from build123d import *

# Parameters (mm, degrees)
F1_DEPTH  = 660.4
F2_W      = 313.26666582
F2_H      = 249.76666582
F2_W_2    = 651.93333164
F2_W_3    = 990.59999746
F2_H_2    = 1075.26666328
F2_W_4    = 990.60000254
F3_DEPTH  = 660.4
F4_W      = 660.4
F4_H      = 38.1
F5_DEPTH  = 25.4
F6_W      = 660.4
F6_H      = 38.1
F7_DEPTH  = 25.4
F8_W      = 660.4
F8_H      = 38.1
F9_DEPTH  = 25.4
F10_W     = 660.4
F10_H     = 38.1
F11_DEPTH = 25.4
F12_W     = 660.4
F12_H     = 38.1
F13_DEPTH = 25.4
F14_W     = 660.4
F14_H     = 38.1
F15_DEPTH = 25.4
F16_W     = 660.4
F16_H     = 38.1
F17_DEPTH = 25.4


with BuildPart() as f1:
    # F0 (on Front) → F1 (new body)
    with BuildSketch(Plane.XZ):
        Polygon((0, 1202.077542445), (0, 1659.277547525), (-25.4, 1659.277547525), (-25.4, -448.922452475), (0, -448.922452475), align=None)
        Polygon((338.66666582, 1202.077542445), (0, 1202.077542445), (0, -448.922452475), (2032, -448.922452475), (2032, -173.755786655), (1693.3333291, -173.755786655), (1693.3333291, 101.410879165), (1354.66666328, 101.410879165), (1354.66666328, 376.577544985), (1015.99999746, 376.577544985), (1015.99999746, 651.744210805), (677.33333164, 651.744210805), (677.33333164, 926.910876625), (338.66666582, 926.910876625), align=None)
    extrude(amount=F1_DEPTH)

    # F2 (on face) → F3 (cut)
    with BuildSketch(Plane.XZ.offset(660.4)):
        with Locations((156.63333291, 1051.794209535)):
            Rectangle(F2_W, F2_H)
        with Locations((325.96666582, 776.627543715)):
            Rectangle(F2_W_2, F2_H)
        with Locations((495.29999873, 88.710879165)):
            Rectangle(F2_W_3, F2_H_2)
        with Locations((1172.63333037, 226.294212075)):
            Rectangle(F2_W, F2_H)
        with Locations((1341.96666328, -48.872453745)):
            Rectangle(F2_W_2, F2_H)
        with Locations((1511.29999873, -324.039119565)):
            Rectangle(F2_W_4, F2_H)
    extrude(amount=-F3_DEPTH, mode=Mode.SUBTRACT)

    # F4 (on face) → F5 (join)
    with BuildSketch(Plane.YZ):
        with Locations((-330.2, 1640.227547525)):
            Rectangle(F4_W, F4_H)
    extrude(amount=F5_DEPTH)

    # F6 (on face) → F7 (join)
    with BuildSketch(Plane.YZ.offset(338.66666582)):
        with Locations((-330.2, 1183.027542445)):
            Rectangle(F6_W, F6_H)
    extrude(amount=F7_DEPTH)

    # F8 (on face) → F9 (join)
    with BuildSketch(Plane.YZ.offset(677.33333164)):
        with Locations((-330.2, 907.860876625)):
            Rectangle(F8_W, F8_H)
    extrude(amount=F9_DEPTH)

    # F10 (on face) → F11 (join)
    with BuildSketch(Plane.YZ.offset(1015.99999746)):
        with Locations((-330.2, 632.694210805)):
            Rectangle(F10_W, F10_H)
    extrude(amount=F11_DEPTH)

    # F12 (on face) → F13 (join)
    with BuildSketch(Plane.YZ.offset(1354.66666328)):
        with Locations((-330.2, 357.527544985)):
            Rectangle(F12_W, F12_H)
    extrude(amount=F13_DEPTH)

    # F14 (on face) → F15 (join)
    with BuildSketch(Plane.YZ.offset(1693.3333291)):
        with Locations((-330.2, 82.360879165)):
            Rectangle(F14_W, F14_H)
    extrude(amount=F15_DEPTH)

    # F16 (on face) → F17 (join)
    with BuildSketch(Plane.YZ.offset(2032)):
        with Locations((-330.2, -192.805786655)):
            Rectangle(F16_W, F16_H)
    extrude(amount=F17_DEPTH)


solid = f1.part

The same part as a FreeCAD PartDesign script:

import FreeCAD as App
import Part
import Sketcher
Q = App.Units.Quantity


def add_polygon(sketch, points):
    """Adds a closed chain of lines whose ends are joined by coincident constraints."""
    first, n = sketch.GeometryCount, len(points)
    for a, b in zip(points, points[1:] + points[:1]):
        sketch.addGeometry(Part.LineSegment(App.Vector(*a, 0), App.Vector(*b, 0)), False)
    for i in range(n):
        sketch.addConstraint(Sketcher.Constraint("Coincident", first + i, 2, first + (i + 1) % n, 1))

doc = App.newDocument("Part")
body = doc.addObject("PartDesign::Body", "Body")

sketch1 = doc.addObject("Sketcher::SketchObject", "Sketch")
body.addObject(sketch1)
sketch1.AttachmentSupport = (doc.XZ_Plane, [""])
sketch1.MapMode = "FlatFace"
add_polygon(sketch1, [(0, 1659.277548), (-25.4, 1659.277548), (-25.4, -448.922452), (2032, -448.922452), (2032, -173.755787), (1693.333329, -173.755787), (1693.333329, 101.410879), (1354.666663, 101.410879), (1354.666663, 376.577545), (1015.999997, 376.577545), (1015.999997, 651.744211), (677.333332, 651.744211), (677.333332, 926.910877), (338.666666, 926.910877), (338.666666, 1202.077542), (0, 1202.077542)])
sketch1.addConstraint([
    Sketcher.Constraint("Horizontal", 0),
    Sketcher.Constraint("Vertical", 1),
    Sketcher.Constraint("Horizontal", 2),
    Sketcher.Constraint("Vertical", 3),
    Sketcher.Constraint("Horizontal", 4),
    Sketcher.Constraint("Vertical", 5),
    Sketcher.Constraint("Horizontal", 6),
    Sketcher.Constraint("Vertical", 7),
    Sketcher.Constraint("Horizontal", 8),
    Sketcher.Constraint("Vertical", 9),
    Sketcher.Constraint("Horizontal", 10),
    Sketcher.Constraint("Vertical", 11),
    Sketcher.Constraint("Horizontal", 12),
    Sketcher.Constraint("Vertical", 13),
    Sketcher.Constraint("Horizontal", 14),
    Sketcher.Constraint("Vertical", 15),
    Sketcher.Constraint("PointOnObject", 14, 2, -2),
    Sketcher.Constraint("Equal", 6, 8),
    Sketcher.Constraint("Equal", 8, 10),
    Sketcher.Constraint("Equal", 10, 12),
    Sketcher.Constraint("Equal", 12, 14),
    Sketcher.Constraint("Equal", 3, 5),
    Sketcher.Constraint("Equal", 5, 7),
    Sketcher.Constraint("Equal", 7, 9),
    Sketcher.Constraint("Equal", 9, 11),
    Sketcher.Constraint("Equal", 11, 13),
    Sketcher.Constraint("DistanceX", 0, 2, 0, 1, Q("1 in")),
    Sketcher.Constraint("DistanceX", 2, 1, 2, 2, Q("81 in")),
    Sketcher.Constraint("DistanceY", 1, 2, 1, 1, Q("83 in")),
    Sketcher.Constraint("DistanceY", 15, 1, 15, 2, Q("18.0000002 in")),
    Sketcher.Constraint("DistanceX", -1, 1, 8, 2, Q("39.9999999 in")),
    Sketcher.Constraint("DistanceY", -1, 1, 5, 2, Q("101.410879 mm")),
])
pad1 = doc.addObject("PartDesign::Pad", "Pad")
body.addObject(pad1)
pad1.Profile = sketch1
pad1.Length = Q("26 in")

sketch2 = doc.addObject("Sketcher::SketchObject", "Sketch001")
body.addObject(sketch2)
sketch2.AttachmentSupport = (doc.XZ_Plane, [""])
sketch2.MapMode = "FlatFace"
sketch2.AttachmentOffset = App.Placement(App.Vector(0, 0, 26 * 25.4), App.Rotation())
add_polygon(sketch2, [(0, 1176.677542), (0, 926.910877), (313.266666, 926.910877), (313.266666, 1176.677542)])
add_polygon(sketch2, [(0, 901.510877), (0, 651.744211), (651.933332, 651.744211), (651.933332, 901.510877)])
add_polygon(sketch2, [(0, 626.344211), (0, -448.922452), (990.599997, -448.922452), (990.599997, 626.344211)])
add_polygon(sketch2, [(1015.999997, 351.177545), (1015.999997, 101.410879), (1329.266663, 101.410879), (1329.266663, 351.177545)])
add_polygon(sketch2, [(1015.999997, 76.010879), (1015.999997, -173.755787), (1667.933329, -173.755787), (1667.933329, 76.010879)])
add_polygon(sketch2, [(1015.999997, -199.155787), (1015.999997, -448.922452), (2006.6, -448.922452), (2006.6, -199.155787)])
sketch2.addConstraint([
    Sketcher.Constraint("Vertical", 0),
    Sketcher.Constraint("Horizontal", 1),
    Sketcher.Constraint("Vertical", 2),
    Sketcher.Constraint("Horizontal", 3),
    Sketcher.Constraint("Vertical", 4),
    Sketcher.Constraint("Horizontal", 5),
    Sketcher.Constraint("Vertical", 6),
    Sketcher.Constraint("Horizontal", 7),
    Sketcher.Constraint("Vertical", 8),
    Sketcher.Constraint("Horizontal", 9),
    Sketcher.Constraint("Vertical", 10),
    Sketcher.Constraint("Horizontal", 11),
    Sketcher.Constraint("Vertical", 12),
    Sketcher.Constraint("Horizontal", 13),
    Sketcher.Constraint("Vertical", 14),
    Sketcher.Constraint("Horizontal", 15),
    Sketcher.Constraint("Vertical", 16),
    Sketcher.Constraint("Horizontal", 17),
    Sketcher.Constraint("Vertical", 18),
    Sketcher.Constraint("Horizontal", 19),
    Sketcher.Constraint("Vertical", 20),
    Sketcher.Constraint("Horizontal", 21),
    Sketcher.Constraint("Vertical", 22),
    Sketcher.Constraint("Horizontal", 23),
    Sketcher.Constraint("PointOnObject", 0, 2, -2),
    Sketcher.Constraint("PointOnObject", 4, 2, -2),
    Sketcher.Constraint("PointOnObject", 8, 2, -2),
    Sketcher.Constraint("Horizontal", 9, 2, 20, 2),
    Sketcher.Constraint("Vertical", 15, 2, 16, 2),
    Sketcher.Constraint("Vertical", 19, 2, 20, 2),
    Sketcher.Constraint("Equal", 3, 13),
    Sketcher.Constraint("Equal", 7, 17),
    Sketcher.Constraint("Equal", 2, 4),
    Sketcher.Constraint("Equal", 6, 12),
    Sketcher.Constraint("Equal", 14, 16),
    Sketcher.Constraint("Equal", 18, 20),
    Sketcher.Constraint("DistanceX", 9, 1, 9, 2, Q("38.9999999 in")),
    Sketcher.Constraint("DistanceX", 21, 1, 21, 2, Q("39.0000001 in")),
    Sketcher.Constraint("DistanceX", -1, 1, 12, 2, Q("39.9999999 in")),
    Sketcher.Constraint("DistanceY", 6, 2, 1, 2, Q("1 in")),
    Sketcher.Constraint("DistanceY", 10, 2, 5, 2, Q("1 in")),
    Sketcher.Constraint("DistanceY", 18, 2, 13, 2, Q("1 in")),
    Sketcher.Constraint("DistanceY", 22, 2, 17, 2, Q("1 in")),
    Sketcher.Constraint("DistanceY", 12, 2, 6, 2, Q("31.4999999 in")),
    Sketcher.Constraint("DistanceY", 9, 2, 14, 2, Q("31.4999999 in")),
    Sketcher.Constraint("DistanceX", 5, 1, 5, 2, Q("651.933332 mm")),
    Sketcher.Constraint("DistanceX", 1, 1, 1, 2, Q("313.266666 mm")),
    Sketcher.Constraint("DistanceY", -1, 1, 4, 2, Q("651.744211 mm")),
])
pocket1 = doc.addObject("PartDesign::Pocket", "Pocket")
body.addObject(pocket1)
pocket1.Profile = sketch2
pocket1.Length = Q("26 in")

sketch3 = doc.addObject("Sketcher::SketchObject", "Sketch002")
body.addObject(sketch3)
sketch3.AttachmentSupport = (doc.YZ_Plane, [""])
sketch3.MapMode = "FlatFace"
add_polygon(sketch3, [(-660.4, 1659.277548), (-660.4, 1621.177548), (0, 1621.177548), (0, 1659.277548)])
sketch3.addConstraint([
    Sketcher.Constraint("Vertical", 0),
    Sketcher.Constraint("Horizontal", 1),
    Sketcher.Constraint("Vertical", 2),
    Sketcher.Constraint("Horizontal", 3),
    Sketcher.Constraint("PointOnObject", 1, 2, -2),
    Sketcher.Constraint("DistanceX", 1, 1, 1, 2, Q("26 in")),
    Sketcher.Constraint("DistanceY", 0, 2, 0, 1, Q("1.5 in")),
    Sketcher.Constraint("DistanceY", -1, 1, 0, 2, Q("1621.177548 mm")),
])
pad2 = doc.addObject("PartDesign::Pad", "Pad001")
body.addObject(pad2)
pad2.Profile = sketch3
pad2.Length = Q("1 in")

sketch4 = doc.addObject("Sketcher::SketchObject", "Sketch003")
body.addObject(sketch4)
sketch4.AttachmentSupport = (doc.YZ_Plane, [""])
sketch4.MapMode = "FlatFace"
sketch4.AttachmentOffset = App.Placement(App.Vector(0, 0, 338.666666), App.Rotation())
add_polygon(sketch4, [(-660.4, 1202.077542), (-660.4, 1163.977542), (0, 1163.977542), (0, 1202.077542)])
sketch4.addConstraint([
    Sketcher.Constraint("Vertical", 0),
    Sketcher.Constraint("Horizontal", 1),
    Sketcher.Constraint("Vertical", 2),
    Sketcher.Constraint("Horizontal", 3),
    Sketcher.Constraint("PointOnObject", 1, 2, -2),
    Sketcher.Constraint("DistanceX", 1, 1, 1, 2, Q("26 in")),
    Sketcher.Constraint("DistanceY", 0, 2, 0, 1, Q("1.5 in")),
    Sketcher.Constraint("DistanceY", -1, 1, 0, 2, Q("1163.977542 mm")),
])
pad3 = doc.addObject("PartDesign::Pad", "Pad002")
body.addObject(pad3)
pad3.Profile = sketch4
pad3.Length = Q("1 in")

sketch5 = doc.addObject("Sketcher::SketchObject", "Sketch004")
body.addObject(sketch5)
sketch5.AttachmentSupport = (doc.YZ_Plane, [""])
sketch5.MapMode = "FlatFace"
sketch5.AttachmentOffset = App.Placement(App.Vector(0, 0, 677.333332), App.Rotation())
add_polygon(sketch5, [(-660.4, 926.910877), (-660.4, 888.810877), (0, 888.810877), (0, 926.910877)])
sketch5.addConstraint([
    Sketcher.Constraint("Vertical", 0),
    Sketcher.Constraint("Horizontal", 1),
    Sketcher.Constraint("Vertical", 2),
    Sketcher.Constraint("Horizontal", 3),
    Sketcher.Constraint("PointOnObject", 1, 2, -2),
    Sketcher.Constraint("DistanceX", 1, 1, 1, 2, Q("26 in")),
    Sketcher.Constraint("DistanceY", 0, 2, 0, 1, Q("1.5 in")),
    Sketcher.Constraint("DistanceY", -1, 1, 0, 2, Q("888.810877 mm")),
])
pad4 = doc.addObject("PartDesign::Pad", "Pad003")
body.addObject(pad4)
pad4.Profile = sketch5
pad4.Length = Q("1 in")

sketch6 = doc.addObject("Sketcher::SketchObject", "Sketch005")
body.addObject(sketch6)
sketch6.AttachmentSupport = (doc.YZ_Plane, [""])
sketch6.MapMode = "FlatFace"
sketch6.AttachmentOffset = App.Placement(App.Vector(0, 0, 39.9999999 * 25.4), App.Rotation())
add_polygon(sketch6, [(-660.4, 651.744211), (-660.4, 613.644211), (0, 613.644211), (0, 651.744211)])
sketch6.addConstraint([
    Sketcher.Constraint("Vertical", 0),
    Sketcher.Constraint("Horizontal", 1),
    Sketcher.Constraint("Vertical", 2),
    Sketcher.Constraint("Horizontal", 3),
    Sketcher.Constraint("PointOnObject", 1, 2, -2),
    Sketcher.Constraint("DistanceX", 1, 1, 1, 2, Q("26 in")),
    Sketcher.Constraint("DistanceY", 0, 2, 0, 1, Q("1.5 in")),
    Sketcher.Constraint("DistanceY", -1, 1, 0, 2, Q("613.644211 mm")),
])
pad5 = doc.addObject("PartDesign::Pad", "Pad004")
body.addObject(pad5)
pad5.Profile = sketch6
pad5.Length = Q("1 in")

sketch7 = doc.addObject("Sketcher::SketchObject", "Sketch006")
body.addObject(sketch7)
sketch7.AttachmentSupport = (doc.YZ_Plane, [""])
sketch7.MapMode = "FlatFace"
sketch7.AttachmentOffset = App.Placement(App.Vector(0, 0, 1354.666663), App.Rotation())
add_polygon(sketch7, [(-660.4, 376.577545), (-660.4, 338.477545), (0, 338.477545), (0, 376.577545)])
sketch7.addConstraint([
    Sketcher.Constraint("Vertical", 0),
    Sketcher.Constraint("Horizontal", 1),
    Sketcher.Constraint("Vertical", 2),
    Sketcher.Constraint("Horizontal", 3),
    Sketcher.Constraint("PointOnObject", 1, 2, -2),
    Sketcher.Constraint("DistanceX", 1, 1, 1, 2, Q("26 in")),
    Sketcher.Constraint("DistanceY", 0, 2, 0, 1, Q("1.5 in")),
    Sketcher.Constraint("DistanceY", -1, 1, 0, 2, Q("338.477545 mm")),
])
pad6 = doc.addObject("PartDesign::Pad", "Pad005")
body.addObject(pad6)
pad6.Profile = sketch7
pad6.Length = Q("1 in")

sketch8 = doc.addObject("Sketcher::SketchObject", "Sketch007")
body.addObject(sketch8)
sketch8.AttachmentSupport = (doc.YZ_Plane, [""])
sketch8.MapMode = "FlatFace"
sketch8.AttachmentOffset = App.Placement(App.Vector(0, 0, 1693.333329), App.Rotation())
add_polygon(sketch8, [(-660.4, 101.410879), (-660.4, 63.310879), (0, 63.310879), (0, 101.410879)])
sketch8.addConstraint([
    Sketcher.Constraint("Vertical", 0),
    Sketcher.Constraint("Horizontal", 1),
    Sketcher.Constraint("Vertical", 2),
    Sketcher.Constraint("Horizontal", 3),
    Sketcher.Constraint("PointOnObject", 1, 2, -2),
    Sketcher.Constraint("DistanceX", 1, 1, 1, 2, Q("26 in")),
    Sketcher.Constraint("DistanceY", 0, 2, 0, 1, Q("1.5 in")),
    Sketcher.Constraint("DistanceY", -1, 1, 0, 2, Q("63.310879 mm")),
])
pad7 = doc.addObject("PartDesign::Pad", "Pad006")
body.addObject(pad7)
pad7.Profile = sketch8
pad7.Length = Q("1 in")

sketch9 = doc.addObject("Sketcher::SketchObject", "Sketch008")
body.addObject(sketch9)
sketch9.AttachmentSupport = (doc.YZ_Plane, [""])
sketch9.MapMode = "FlatFace"
sketch9.AttachmentOffset = App.Placement(App.Vector(0, 0, 80 * 25.4), App.Rotation())
add_polygon(sketch9, [(-660.4, -173.755787), (-660.4, -211.855787), (0, -211.855787), (0, -173.755787)])
sketch9.addConstraint([
    Sketcher.Constraint("Vertical", 0),
    Sketcher.Constraint("Horizontal", 1),
    Sketcher.Constraint("Vertical", 2),
    Sketcher.Constraint("Horizontal", 3),
    Sketcher.Constraint("PointOnObject", 1, 2, -2),
    Sketcher.Constraint("DistanceX", 1, 1, 1, 2, Q("26 in")),
    Sketcher.Constraint("DistanceY", 0, 2, 0, 1, Q("1.5 in")),
    Sketcher.Constraint("DistanceY", 0, 2, -1, 1, Q("211.855787 mm")),
])
pad8 = doc.addObject("PartDesign::Pad", "Pad007")
body.addObject(pad8)
pad8.Profile = sketch9
pad8.Length = Q("1 in")

doc.recompute()
